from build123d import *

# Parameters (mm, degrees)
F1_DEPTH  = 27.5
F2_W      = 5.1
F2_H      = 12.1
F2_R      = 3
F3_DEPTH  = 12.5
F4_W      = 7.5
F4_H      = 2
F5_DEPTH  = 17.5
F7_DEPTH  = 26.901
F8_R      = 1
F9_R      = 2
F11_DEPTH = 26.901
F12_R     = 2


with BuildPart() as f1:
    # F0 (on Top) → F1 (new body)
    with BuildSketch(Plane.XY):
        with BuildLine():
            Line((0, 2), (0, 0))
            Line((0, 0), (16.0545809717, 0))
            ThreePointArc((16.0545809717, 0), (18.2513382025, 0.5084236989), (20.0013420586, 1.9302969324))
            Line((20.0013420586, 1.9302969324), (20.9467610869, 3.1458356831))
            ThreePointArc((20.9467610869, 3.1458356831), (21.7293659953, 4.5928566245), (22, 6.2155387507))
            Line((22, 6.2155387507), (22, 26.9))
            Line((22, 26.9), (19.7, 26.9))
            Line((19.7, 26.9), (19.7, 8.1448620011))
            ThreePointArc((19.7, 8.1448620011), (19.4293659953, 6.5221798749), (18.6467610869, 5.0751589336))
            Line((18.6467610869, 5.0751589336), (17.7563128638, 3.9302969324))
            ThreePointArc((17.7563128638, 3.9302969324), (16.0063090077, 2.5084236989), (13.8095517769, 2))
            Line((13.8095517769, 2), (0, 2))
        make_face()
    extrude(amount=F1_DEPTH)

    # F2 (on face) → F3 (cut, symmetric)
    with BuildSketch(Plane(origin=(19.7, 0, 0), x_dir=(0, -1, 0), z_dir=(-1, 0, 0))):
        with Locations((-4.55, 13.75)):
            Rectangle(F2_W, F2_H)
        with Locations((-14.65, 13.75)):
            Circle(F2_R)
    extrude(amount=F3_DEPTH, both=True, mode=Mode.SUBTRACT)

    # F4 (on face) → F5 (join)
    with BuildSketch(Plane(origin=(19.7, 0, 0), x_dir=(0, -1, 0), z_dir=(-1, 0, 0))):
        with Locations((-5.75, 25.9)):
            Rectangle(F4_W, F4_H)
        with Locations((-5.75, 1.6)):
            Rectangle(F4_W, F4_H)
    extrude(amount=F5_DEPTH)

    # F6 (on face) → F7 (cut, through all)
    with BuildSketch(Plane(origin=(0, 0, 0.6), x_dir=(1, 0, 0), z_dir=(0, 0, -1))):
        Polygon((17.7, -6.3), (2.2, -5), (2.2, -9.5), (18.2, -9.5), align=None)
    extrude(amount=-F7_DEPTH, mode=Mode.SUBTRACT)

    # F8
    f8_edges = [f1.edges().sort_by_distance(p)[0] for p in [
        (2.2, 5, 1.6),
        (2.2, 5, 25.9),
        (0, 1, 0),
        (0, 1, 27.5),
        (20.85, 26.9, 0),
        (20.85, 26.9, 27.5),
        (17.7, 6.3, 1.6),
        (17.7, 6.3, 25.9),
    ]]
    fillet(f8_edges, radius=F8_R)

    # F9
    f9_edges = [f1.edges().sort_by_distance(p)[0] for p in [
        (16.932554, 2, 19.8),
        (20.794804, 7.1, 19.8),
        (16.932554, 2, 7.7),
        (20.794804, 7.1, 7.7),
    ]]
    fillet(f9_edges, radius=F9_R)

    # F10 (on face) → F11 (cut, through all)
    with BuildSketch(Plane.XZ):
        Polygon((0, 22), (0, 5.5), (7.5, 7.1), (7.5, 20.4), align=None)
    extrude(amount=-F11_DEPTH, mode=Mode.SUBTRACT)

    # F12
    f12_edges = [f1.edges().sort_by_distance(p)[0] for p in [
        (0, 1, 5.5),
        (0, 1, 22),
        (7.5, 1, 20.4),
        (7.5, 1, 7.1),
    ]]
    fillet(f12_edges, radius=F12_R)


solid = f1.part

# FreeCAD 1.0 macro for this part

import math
import FreeCAD as App
import Part
import Sketcher
from FreeCAD import Vector


def edges_at(feature, points):
    """Names of the edges that pass closest to the given points."""
    edges = feature.Shape.Edges
    near = lambda p: min(range(len(edges)), key=lambda i: edges[i].distToShape(Part.Vertex(*p))[0])
    return sorted({f"Edge{near(p) + 1}" for p in points})


def add_polygon(sketch, points):
    """Adds a closed chain of lines whose ends are joined by coincident constraints."""
    first, n = sketch.GeometryCount, len(points)
    for a, b in zip(points, points[1:] + points[:1]):
        sketch.addGeometry(Part.LineSegment(App.Vector(*a, 0), App.Vector(*b, 0)), False)
    for i in range(n):
        sketch.addConstraint(Sketcher.Constraint("Coincident", first + i, 2, first + (i + 1) % n, 1))

doc = App.newDocument("Part")
params = doc.addObject("Spreadsheet::Sheet", "Params")
for row, (alias, value) in enumerate([
    ("sketch1_radius", "5 mm"),
    ("sketch1_height", "2 mm"),
    ("sketch1_width", "2.3 mm"),
    ("pad1_length", "27.5 mm"),
    ("sketch2_diameter", "6 mm"),
    ("sketch2_width", "5.1 mm"),
    ("sketch2_height", "12.1 mm"),
    ("pocket1_length", "25 mm"),
    ("sketch3_height", "2 mm"),
    ("sketch3_width", "7.5 mm"),
    ("pad2_length", "17.5 mm"),
    ("sketch4_width", "16 mm"),
    ("sketch4_height", "4.5 mm"),
    ("fillet_radius", "1 mm"),
    ("fillet2_radius", "2 mm"),
    ("sketch5_height", "16.5 mm"),
    ("sketch5_height2", "13.3 mm"),
    ("fillet3_radius", "2 mm"),
], start=1):
    params.set(f"A{row}", alias)
    params.set(f"B{row}", "=" + value)
    params.setAlias(f"B{row}", alias)

body = doc.addObject("PartDesign::Body", "Body")

# Sketch on XY plane
sketch1 = body.newObject("Sketcher::SketchObject", "Sketch")
sketch1.AttachmentSupport = (doc.getObject("XY_Plane"), [""])
sketch1.MapMode = "FlatFace"
sketch1.addGeometry([
    Part.LineSegment(Vector(0, 2, 0), Vector(0, 0, 0)),  # 0
    Part.LineSegment(Vector(0, 0, 0), Vector(16.1, 0, 0)),  # 1
    Part.ArcOfCircle(Part.Circle(Vector(16.1, 5, 0), Vector(0, 0, 1), 5), math.radians(-90), math.radians(-38)),  # 2
    Part.LineSegment(Vector(20, 1.9, 0), Vector(20.9, 3.1, 0)),  # 3
    Part.ArcOfCircle(Part.Circle(Vector(17, 6.2, 0), Vector(0, 0, 1), 5), math.radians(-38), math.radians(0)),  # 4
    Part.LineSegment(Vector(22, 6.2, 0), Vector(22, 26.9, 0)),  # 5
    Part.LineSegment(Vector(22, 26.9, 0), Vector(19.7, 26.9, 0)),  # 6
    Part.LineSegment(Vector(19.7, 26.9, 0), Vector(19.7, 8.1, 0)),  # 7
    Part.ArcOfCircle(Part.Circle(Vector(14.7, 8.1, 0), Vector(0, 0, 1), 5), math.radians(-38), math.radians(0)),  # 8
    Part.LineSegment(Vector(18.6, 5.1, 0), Vector(17.8, 3.9, 0)),  # 9
    Part.ArcOfCircle(Part.Circle(Vector(13.8, 7, 0), Vector(0, 0, 1), 5), math.radians(-90), math.radians(-38)),  # 10
    Part.LineSegment(Vector(13.8, 2, 0), Vector(0, 2, 0)),  # 11
], False)
sketch1.addConstraint([
    Sketcher.Constraint("Coincident", 0, 2, 1, 1),
    Sketcher.Constraint("Tangent", 1, 2, 2, 1),
    Sketcher.Constraint("Tangent", 2, 2, 3, 1),
    Sketcher.Constraint("Tangent", 3, 2, 4, 1),
    Sketcher.Constraint("Tangent", 4, 2, 5, 1),
    Sketcher.Constraint("Coincident", 5, 2, 6, 1),
    Sketcher.Constraint("Coincident", 6, 2, 7, 1),
    Sketcher.Constraint("Tangent", 7, 2, 8, 2),
    Sketcher.Constraint("Tangent", 8, 1, 9, 1),
    Sketcher.Constraint("Tangent", 9, 2, 10, 2),
    Sketcher.Constraint("Tangent", 10, 1, 11, 1),
    Sketcher.Constraint("Coincident", 11, 2, 0, 1),
    Sketcher.Constraint("Vertical", 0),
    Sketcher.Constraint("Horizontal", 1),
    Sketcher.Constraint("Vertical", 5),
    Sketcher.Constraint("Horizontal", 6),
    Sketcher.Constraint("Vertical", 7),
    Sketcher.Constraint("Horizontal", 11),
    Sketcher.Constraint("Coincident", 0, 2, -1, 1),
    Sketcher.Constraint("Equal", 2, 4),
    Sketcher.Constraint("Equal", 4, 8),
    Sketcher.Constraint("Equal", 8, 10),
    Sketcher.Constraint("Parallel", 3, 9),
    Sketcher.Constraint("Radius", 2, 5.0),
    Sketcher.Constraint("DistanceY", 0, 2, 0, 1, 2.0),
    Sketcher.Constraint("DistanceX", 6, 2, 6, 1, 2.3),
    Sketcher.Constraint("DistanceX", -1, 1, 4, 3, 17.0),
    Sketcher.Constraint("DistanceY", -1, 1, 5, 2, 26.9),
    Sketcher.Constraint("DistanceX", 1, 1, 1, 2, 16.054581),
    Sketcher.Constraint("DistanceX", 11, 2, 11, 1, 13.809552),
    Sketcher.Constraint("DistanceY", 5, 1, 5, 2, 20.684461),
])
sketch1.setExpression("Constraints[23]", "Params.sketch1_radius")
sketch1.setExpression("Constraints[24]", "Params.sketch1_height")
sketch1.setExpression("Constraints[25]", "Params.sketch1_width")
pad1 = body.newObject("PartDesign::Pad", "Pad")
pad1.Profile = sketch1
pad1.setExpression("Length", "Params.pad1_length")

# Sketch on YZ plane
sketch2 = body.newObject("Sketcher::SketchObject", "Sketch001")
sketch2.AttachmentSupport = (doc.getObject("YZ_Plane"), [""])
sketch2.MapMode = "FlatFace"
sketch2.AttachmentOffset = App.Placement(Vector(0, 0, 19.7), App.Rotation())
add_polygon(sketch2, [(7.1, 19.8), (7.1, 7.7), (2, 7.7), (2, 19.8)])  # lines 0-3
sketch2.addGeometry(Part.Circle(Vector(14.7, 13.8, 0), Vector(0, 0, 1), 3), False)  # 4
sketch2.addConstraint([
    Sketcher.Constraint("Vertical", 0),
    Sketcher.Constraint("Horizontal", 1),
    Sketcher.Constraint("Vertical", 2),
    Sketcher.Constraint("Horizontal", 3),
    Sketcher.Constraint("Diameter", 4, 6.0),
    Sketcher.Constraint("DistanceX", 1, 2, 1, 1, 5.1),
    Sketcher.Constraint("DistanceY", 0, 2, 0, 1, 12.1),
    Sketcher.Constraint("DistanceX", -1, 1, 1, 2, 2.0),
    Sketcher.Constraint("DistanceY", -1, 1, 0, 2, 7.7),
    Sketcher.Constraint("DistanceX", -1, 1, 4, 3, 14.65),
    Sketcher.Constraint("DistanceY", -1, 1, 4, 3, 13.75),
])
sketch2.setExpression("Constraints[8]", "Params.sketch2_diameter")
sketch2.setExpression("Constraints[9]", "Params.sketch2_width")
sketch2.setExpression("Constraints[10]", "Params.sketch2_height")
pocket1 = body.newObject("PartDesign::Pocket", "Pocket")
pocket1.Profile = sketch2
pocket1.setExpression("Length", "Params.pocket1_length")
pocket1.Midplane = True

# Sketch on YZ plane
sketch3 = body.newObject("Sketcher::SketchObject", "Sketch002")
sketch3.AttachmentSupport = (doc.getObject("YZ_Plane"), [""])
sketch3.MapMode = "FlatFace"
sketch3.AttachmentOffset = App.Placement(Vector(0, 0, 19.7), App.Rotation())
add_polygon(sketch3, [(9.5, 26.9), (9.5, 24.9), (2, 24.9), (2, 26.9)])  # lines 0-3
add_polygon(sketch3, [(9.5, 2.6), (9.5, 0.6), (2, 0.6), (2, 2.6)])  # lines 4-7
sketch3.addConstraint([
    Sketcher.Constraint("Vertical", 0),
    Sketcher.Constraint("Horizontal", 1),
    Sketcher.Constraint("Vertical", 2),
    Sketcher.Constraint("Horizontal", 3),
    Sketcher.Constraint("Vertical", 4),
    Sketcher.Constraint("Horizontal", 5),
    Sketcher.Constraint("Vertical", 6),
    Sketcher.Constraint("Horizontal", 7),
    Sketcher.Constraint("Vertical", 3, 2, 4, 2),
    Sketcher.Constraint("Vertical", 2, 2, 5, 2),
    Sketcher.Constraint("Equal", 2, 4),
    Sketcher.Constraint("DistanceY", 0, 2, 0, 1, 2.0),
    Sketcher.Constraint("DistanceX", 1, 2, 1, 1, 7.5),
    Sketcher.Constraint("DistanceX", -1, 1, 1, 2, 2.0),
    Sketcher.Constraint("DistanceY", -1, 1, 0, 2, 24.9),
    Sketcher.Constraint("DistanceY", -1, 1, 4, 2, 0.6),
])
sketch3.setExpression("Constraints[19]", "Params.sketch3_height")
sketch3.setExpression("Constraints[20]", "Params.sketch3_width")
pad2 = body.newObject("PartDesign::Pad", "Pad001")
pad2.Profile = sketch3
pad2.setExpression("Length", "Params.pad2_length")
pad2.Reversed = True

# Sketch on XY plane
sketch4 = body.newObject("Sketcher::SketchObject", "Sketch003")
sketch4.AttachmentSupport = (doc.getObject("XY_Plane"), [""])
sketch4.MapMode = "FlatFace"
sketch4.AttachmentOffset = App.Placement(Vector(0, 0, 0.6), App.Rotation())
add_polygon(sketch4, [(17.7, 6.3), (2.2, 5), (2.2, 9.5), (18.2, 9.5)])  # lines 0-3
sketch4.addConstraint([
    Sketcher.Constraint("Vertical", 1),
    Sketcher.Constraint("Horizontal", 2),
    Sketcher.Constraint("DistanceX", 2, 1, 2, 2, 16.0),
    Sketcher.Constraint("DistanceY", 1, 1, 1, 2, 4.5),
    Sketcher.Constraint("DistanceY", -1, 1, 0, 2, 5.0),
    Sketcher.Constraint("DistanceX", -1, 1, 0, 2, 2.2),
    Sketcher.Constraint("DistanceX", -1, 1, 3, 2, 17.7),
    Sketcher.Constraint("DistanceY", -1, 1, 3, 2, 6.3),
])
sketch4.setExpression("Constraints[6]", "Params.sketch4_width")
sketch4.setExpression("Constraints[7]", "Params.sketch4_height")
pocket2 = body.newObject("PartDesign::Pocket", "Pocket001")
pocket2.Profile = sketch4
pocket2.Type = "ThroughAll"
pocket2.Reversed = True
doc.recompute()

fillet = body.newObject("PartDesign::Fillet", "Fillet")
fillet.Base = (pocket2, edges_at(pocket2, [
    (2.2, 5, 1.6),
    (2.2, 5, 25.9),
    (0, 1, 0),
    (0, 1, 27.5),
    (20.85, 26.9, 0),
    (20.85, 26.9, 27.5),
    (17.7, 6.3, 1.6),
    (17.7, 6.3, 25.9),
]))
fillet.setExpression("Radius", "Params.fillet_radius")
doc.recompute()

fillet2 = body.newObject("PartDesign::Fillet", "Fillet001")
fillet2.Base = (fillet, edges_at(fillet, [
    (16.933, 2, 19.8),
    (20.795, 7.1, 19.8),
    (16.933, 2, 7.7),
    (20.795, 7.1, 7.7),
]))
fillet2.setExpression("Radius", "Params.fillet2_radius")

# Sketch on XZ plane
sketch5 = body.newObject("Sketcher::SketchObject", "Sketch004")
sketch5.AttachmentSupport = (doc.getObject("XZ_Plane"), [""])
sketch5.MapMode = "FlatFace"
add_polygon(sketch5, [(0, 22), (0, 6), (8, 7), (8, 20)])  # lines 0-3
sketch5.addConstraint([
    Sketcher.Constraint("Vertical", 0),
    Sketcher.Constraint("Vertical", 2),
    Sketcher.Constraint("PointOnObject", 0, 2, -2),
    Sketcher.Constraint("Equal", 1, 3),
    Sketcher.Constraint("DistanceY", 0, 2, 0, 1, 16.5),
    Sketcher.Constraint("DistanceY", 2, 1, 2, 2, 13.3),
    Sketcher.Constraint("DistanceY", -1, 1, 3, 2, 22.0),
    Sketcher.Constraint("DistanceX", -1, 1, 1, 2, 7.5),
])
sketch5.setExpression("Constraints[8]", "Params.sketch5_height")
sketch5.setExpression("Constraints[9]", "Params.sketch5_height2")
pocket3 = body.newObject("PartDesign::Pocket", "Pocket002")
pocket3.Profile = sketch5
pocket3.Type = "ThroughAll"
doc.recompute()

fillet3 = body.newObject("PartDesign::Fillet", "Fillet002")
fillet3.Base = (pocket3, edges_at(pocket3, [
    (0, 1, 5.5),
    (0, 1, 22),
    (7.5, 1, 20.4),
    (7.5, 1, 7.1),
]))
fillet3.setExpression("Radius", "Params.fillet3_radius")

doc.recompute()
